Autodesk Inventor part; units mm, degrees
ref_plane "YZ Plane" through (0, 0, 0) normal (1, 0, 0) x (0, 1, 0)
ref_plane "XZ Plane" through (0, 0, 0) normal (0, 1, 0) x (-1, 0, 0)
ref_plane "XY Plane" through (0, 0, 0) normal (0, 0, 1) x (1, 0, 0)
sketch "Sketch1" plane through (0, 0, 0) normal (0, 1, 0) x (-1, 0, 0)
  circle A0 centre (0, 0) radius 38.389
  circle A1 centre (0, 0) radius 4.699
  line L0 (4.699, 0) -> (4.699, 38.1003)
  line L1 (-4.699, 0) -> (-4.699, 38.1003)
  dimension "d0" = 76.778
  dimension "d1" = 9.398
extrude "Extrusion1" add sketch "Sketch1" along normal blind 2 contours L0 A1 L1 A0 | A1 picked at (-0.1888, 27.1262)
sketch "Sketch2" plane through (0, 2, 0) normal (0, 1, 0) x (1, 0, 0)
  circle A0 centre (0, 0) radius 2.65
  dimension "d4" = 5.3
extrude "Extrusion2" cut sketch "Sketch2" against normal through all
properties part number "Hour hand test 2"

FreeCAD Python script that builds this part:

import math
import FreeCAD as App
import Part
import Sketcher
Q = App.Units.Quantity

doc = App.newDocument("Part")
body = doc.addObject("PartDesign::Body", "Body")

# Sketch on XZ plane
sketch1 = body.newObject("Sketcher::SketchObject", "Sketch")
sketch1.AttachmentSupport = (doc.getObject("XZ_Plane"), [""])
sketch1.MapMode = "FlatFace"
sketch1.addGeometry([
    Part.LineSegment(App.Vector(-4.7, 0, 0), App.Vector(-4.7, 38.1, 0)),
    Part.ArcOfCircle(Part.Circle(App.Vector(0, 0, 0), App.Vector(0, 0, 1), 38.4), math.radians(82.97), math.radians(97.03)),
    Part.LineSegment(App.Vector(4.7, 38.1, 0), App.Vector(4.7, 0, 0)),
    Part.ArcOfCircle(Part.Circle(App.Vector(0, 0, 0), App.Vector(0, 0, 1), 4.7), math.radians(180), math.radians(360)),
], False)
sketch1.addConstraint([
    Sketcher.Constraint("Coincident", 0, 2, 1, 2),
    Sketcher.Constraint("Coincident", 1, 1, 2, 1),
    Sketcher.Constraint("Tangent", 2, 2, 3, 2),
    Sketcher.Constraint("Tangent", 3, 1, 0, 1),
    Sketcher.Constraint("Vertical", 0),
    Sketcher.Constraint("Vertical", 2),
    Sketcher.Constraint("Coincident", 1, 3, -1, 1),
    Sketcher.Constraint("Coincident", 3, 3, -1, 1),
    Sketcher.Constraint("Radius", 1, Q("38.389 mm")),
    Sketcher.Constraint("Radius", 3, Q("4.699 mm")),
])
pad1 = body.newObject("PartDesign::Pad", "Pad")
pad1.Profile = sketch1
pad1.Length = 2
pad1.Reversed = True

# Sketch on XZ plane
sketch2 = body.newObject("Sketcher::SketchObject", "Sketch001")
sketch2.AttachmentSupport = (doc.getObject("XZ_Plane"), [""])
sketch2.MapMode = "FlatFace"
sketch2.AttachmentOffset = App.Placement(App.Vector(0, 0, -2), App.Rotation())
sketch2.addGeometry(Part.Circle(App.Vector(0, 0, 0), App.Vector(0, 0, 1), 2.6), False)
sketch2.addConstraint([
    Sketcher.Constraint("Coincident", 0, 3, -1, 1),
    Sketcher.Constraint("Diameter", 0, Q("5.3 mm")),
])
pocket1 = body.newObject("PartDesign::Pocket", "Pocket")
pocket1.Profile = sketch2
pocket1.Type = "ThroughAll"
pocket1.Reversed = True

doc.recompute()
